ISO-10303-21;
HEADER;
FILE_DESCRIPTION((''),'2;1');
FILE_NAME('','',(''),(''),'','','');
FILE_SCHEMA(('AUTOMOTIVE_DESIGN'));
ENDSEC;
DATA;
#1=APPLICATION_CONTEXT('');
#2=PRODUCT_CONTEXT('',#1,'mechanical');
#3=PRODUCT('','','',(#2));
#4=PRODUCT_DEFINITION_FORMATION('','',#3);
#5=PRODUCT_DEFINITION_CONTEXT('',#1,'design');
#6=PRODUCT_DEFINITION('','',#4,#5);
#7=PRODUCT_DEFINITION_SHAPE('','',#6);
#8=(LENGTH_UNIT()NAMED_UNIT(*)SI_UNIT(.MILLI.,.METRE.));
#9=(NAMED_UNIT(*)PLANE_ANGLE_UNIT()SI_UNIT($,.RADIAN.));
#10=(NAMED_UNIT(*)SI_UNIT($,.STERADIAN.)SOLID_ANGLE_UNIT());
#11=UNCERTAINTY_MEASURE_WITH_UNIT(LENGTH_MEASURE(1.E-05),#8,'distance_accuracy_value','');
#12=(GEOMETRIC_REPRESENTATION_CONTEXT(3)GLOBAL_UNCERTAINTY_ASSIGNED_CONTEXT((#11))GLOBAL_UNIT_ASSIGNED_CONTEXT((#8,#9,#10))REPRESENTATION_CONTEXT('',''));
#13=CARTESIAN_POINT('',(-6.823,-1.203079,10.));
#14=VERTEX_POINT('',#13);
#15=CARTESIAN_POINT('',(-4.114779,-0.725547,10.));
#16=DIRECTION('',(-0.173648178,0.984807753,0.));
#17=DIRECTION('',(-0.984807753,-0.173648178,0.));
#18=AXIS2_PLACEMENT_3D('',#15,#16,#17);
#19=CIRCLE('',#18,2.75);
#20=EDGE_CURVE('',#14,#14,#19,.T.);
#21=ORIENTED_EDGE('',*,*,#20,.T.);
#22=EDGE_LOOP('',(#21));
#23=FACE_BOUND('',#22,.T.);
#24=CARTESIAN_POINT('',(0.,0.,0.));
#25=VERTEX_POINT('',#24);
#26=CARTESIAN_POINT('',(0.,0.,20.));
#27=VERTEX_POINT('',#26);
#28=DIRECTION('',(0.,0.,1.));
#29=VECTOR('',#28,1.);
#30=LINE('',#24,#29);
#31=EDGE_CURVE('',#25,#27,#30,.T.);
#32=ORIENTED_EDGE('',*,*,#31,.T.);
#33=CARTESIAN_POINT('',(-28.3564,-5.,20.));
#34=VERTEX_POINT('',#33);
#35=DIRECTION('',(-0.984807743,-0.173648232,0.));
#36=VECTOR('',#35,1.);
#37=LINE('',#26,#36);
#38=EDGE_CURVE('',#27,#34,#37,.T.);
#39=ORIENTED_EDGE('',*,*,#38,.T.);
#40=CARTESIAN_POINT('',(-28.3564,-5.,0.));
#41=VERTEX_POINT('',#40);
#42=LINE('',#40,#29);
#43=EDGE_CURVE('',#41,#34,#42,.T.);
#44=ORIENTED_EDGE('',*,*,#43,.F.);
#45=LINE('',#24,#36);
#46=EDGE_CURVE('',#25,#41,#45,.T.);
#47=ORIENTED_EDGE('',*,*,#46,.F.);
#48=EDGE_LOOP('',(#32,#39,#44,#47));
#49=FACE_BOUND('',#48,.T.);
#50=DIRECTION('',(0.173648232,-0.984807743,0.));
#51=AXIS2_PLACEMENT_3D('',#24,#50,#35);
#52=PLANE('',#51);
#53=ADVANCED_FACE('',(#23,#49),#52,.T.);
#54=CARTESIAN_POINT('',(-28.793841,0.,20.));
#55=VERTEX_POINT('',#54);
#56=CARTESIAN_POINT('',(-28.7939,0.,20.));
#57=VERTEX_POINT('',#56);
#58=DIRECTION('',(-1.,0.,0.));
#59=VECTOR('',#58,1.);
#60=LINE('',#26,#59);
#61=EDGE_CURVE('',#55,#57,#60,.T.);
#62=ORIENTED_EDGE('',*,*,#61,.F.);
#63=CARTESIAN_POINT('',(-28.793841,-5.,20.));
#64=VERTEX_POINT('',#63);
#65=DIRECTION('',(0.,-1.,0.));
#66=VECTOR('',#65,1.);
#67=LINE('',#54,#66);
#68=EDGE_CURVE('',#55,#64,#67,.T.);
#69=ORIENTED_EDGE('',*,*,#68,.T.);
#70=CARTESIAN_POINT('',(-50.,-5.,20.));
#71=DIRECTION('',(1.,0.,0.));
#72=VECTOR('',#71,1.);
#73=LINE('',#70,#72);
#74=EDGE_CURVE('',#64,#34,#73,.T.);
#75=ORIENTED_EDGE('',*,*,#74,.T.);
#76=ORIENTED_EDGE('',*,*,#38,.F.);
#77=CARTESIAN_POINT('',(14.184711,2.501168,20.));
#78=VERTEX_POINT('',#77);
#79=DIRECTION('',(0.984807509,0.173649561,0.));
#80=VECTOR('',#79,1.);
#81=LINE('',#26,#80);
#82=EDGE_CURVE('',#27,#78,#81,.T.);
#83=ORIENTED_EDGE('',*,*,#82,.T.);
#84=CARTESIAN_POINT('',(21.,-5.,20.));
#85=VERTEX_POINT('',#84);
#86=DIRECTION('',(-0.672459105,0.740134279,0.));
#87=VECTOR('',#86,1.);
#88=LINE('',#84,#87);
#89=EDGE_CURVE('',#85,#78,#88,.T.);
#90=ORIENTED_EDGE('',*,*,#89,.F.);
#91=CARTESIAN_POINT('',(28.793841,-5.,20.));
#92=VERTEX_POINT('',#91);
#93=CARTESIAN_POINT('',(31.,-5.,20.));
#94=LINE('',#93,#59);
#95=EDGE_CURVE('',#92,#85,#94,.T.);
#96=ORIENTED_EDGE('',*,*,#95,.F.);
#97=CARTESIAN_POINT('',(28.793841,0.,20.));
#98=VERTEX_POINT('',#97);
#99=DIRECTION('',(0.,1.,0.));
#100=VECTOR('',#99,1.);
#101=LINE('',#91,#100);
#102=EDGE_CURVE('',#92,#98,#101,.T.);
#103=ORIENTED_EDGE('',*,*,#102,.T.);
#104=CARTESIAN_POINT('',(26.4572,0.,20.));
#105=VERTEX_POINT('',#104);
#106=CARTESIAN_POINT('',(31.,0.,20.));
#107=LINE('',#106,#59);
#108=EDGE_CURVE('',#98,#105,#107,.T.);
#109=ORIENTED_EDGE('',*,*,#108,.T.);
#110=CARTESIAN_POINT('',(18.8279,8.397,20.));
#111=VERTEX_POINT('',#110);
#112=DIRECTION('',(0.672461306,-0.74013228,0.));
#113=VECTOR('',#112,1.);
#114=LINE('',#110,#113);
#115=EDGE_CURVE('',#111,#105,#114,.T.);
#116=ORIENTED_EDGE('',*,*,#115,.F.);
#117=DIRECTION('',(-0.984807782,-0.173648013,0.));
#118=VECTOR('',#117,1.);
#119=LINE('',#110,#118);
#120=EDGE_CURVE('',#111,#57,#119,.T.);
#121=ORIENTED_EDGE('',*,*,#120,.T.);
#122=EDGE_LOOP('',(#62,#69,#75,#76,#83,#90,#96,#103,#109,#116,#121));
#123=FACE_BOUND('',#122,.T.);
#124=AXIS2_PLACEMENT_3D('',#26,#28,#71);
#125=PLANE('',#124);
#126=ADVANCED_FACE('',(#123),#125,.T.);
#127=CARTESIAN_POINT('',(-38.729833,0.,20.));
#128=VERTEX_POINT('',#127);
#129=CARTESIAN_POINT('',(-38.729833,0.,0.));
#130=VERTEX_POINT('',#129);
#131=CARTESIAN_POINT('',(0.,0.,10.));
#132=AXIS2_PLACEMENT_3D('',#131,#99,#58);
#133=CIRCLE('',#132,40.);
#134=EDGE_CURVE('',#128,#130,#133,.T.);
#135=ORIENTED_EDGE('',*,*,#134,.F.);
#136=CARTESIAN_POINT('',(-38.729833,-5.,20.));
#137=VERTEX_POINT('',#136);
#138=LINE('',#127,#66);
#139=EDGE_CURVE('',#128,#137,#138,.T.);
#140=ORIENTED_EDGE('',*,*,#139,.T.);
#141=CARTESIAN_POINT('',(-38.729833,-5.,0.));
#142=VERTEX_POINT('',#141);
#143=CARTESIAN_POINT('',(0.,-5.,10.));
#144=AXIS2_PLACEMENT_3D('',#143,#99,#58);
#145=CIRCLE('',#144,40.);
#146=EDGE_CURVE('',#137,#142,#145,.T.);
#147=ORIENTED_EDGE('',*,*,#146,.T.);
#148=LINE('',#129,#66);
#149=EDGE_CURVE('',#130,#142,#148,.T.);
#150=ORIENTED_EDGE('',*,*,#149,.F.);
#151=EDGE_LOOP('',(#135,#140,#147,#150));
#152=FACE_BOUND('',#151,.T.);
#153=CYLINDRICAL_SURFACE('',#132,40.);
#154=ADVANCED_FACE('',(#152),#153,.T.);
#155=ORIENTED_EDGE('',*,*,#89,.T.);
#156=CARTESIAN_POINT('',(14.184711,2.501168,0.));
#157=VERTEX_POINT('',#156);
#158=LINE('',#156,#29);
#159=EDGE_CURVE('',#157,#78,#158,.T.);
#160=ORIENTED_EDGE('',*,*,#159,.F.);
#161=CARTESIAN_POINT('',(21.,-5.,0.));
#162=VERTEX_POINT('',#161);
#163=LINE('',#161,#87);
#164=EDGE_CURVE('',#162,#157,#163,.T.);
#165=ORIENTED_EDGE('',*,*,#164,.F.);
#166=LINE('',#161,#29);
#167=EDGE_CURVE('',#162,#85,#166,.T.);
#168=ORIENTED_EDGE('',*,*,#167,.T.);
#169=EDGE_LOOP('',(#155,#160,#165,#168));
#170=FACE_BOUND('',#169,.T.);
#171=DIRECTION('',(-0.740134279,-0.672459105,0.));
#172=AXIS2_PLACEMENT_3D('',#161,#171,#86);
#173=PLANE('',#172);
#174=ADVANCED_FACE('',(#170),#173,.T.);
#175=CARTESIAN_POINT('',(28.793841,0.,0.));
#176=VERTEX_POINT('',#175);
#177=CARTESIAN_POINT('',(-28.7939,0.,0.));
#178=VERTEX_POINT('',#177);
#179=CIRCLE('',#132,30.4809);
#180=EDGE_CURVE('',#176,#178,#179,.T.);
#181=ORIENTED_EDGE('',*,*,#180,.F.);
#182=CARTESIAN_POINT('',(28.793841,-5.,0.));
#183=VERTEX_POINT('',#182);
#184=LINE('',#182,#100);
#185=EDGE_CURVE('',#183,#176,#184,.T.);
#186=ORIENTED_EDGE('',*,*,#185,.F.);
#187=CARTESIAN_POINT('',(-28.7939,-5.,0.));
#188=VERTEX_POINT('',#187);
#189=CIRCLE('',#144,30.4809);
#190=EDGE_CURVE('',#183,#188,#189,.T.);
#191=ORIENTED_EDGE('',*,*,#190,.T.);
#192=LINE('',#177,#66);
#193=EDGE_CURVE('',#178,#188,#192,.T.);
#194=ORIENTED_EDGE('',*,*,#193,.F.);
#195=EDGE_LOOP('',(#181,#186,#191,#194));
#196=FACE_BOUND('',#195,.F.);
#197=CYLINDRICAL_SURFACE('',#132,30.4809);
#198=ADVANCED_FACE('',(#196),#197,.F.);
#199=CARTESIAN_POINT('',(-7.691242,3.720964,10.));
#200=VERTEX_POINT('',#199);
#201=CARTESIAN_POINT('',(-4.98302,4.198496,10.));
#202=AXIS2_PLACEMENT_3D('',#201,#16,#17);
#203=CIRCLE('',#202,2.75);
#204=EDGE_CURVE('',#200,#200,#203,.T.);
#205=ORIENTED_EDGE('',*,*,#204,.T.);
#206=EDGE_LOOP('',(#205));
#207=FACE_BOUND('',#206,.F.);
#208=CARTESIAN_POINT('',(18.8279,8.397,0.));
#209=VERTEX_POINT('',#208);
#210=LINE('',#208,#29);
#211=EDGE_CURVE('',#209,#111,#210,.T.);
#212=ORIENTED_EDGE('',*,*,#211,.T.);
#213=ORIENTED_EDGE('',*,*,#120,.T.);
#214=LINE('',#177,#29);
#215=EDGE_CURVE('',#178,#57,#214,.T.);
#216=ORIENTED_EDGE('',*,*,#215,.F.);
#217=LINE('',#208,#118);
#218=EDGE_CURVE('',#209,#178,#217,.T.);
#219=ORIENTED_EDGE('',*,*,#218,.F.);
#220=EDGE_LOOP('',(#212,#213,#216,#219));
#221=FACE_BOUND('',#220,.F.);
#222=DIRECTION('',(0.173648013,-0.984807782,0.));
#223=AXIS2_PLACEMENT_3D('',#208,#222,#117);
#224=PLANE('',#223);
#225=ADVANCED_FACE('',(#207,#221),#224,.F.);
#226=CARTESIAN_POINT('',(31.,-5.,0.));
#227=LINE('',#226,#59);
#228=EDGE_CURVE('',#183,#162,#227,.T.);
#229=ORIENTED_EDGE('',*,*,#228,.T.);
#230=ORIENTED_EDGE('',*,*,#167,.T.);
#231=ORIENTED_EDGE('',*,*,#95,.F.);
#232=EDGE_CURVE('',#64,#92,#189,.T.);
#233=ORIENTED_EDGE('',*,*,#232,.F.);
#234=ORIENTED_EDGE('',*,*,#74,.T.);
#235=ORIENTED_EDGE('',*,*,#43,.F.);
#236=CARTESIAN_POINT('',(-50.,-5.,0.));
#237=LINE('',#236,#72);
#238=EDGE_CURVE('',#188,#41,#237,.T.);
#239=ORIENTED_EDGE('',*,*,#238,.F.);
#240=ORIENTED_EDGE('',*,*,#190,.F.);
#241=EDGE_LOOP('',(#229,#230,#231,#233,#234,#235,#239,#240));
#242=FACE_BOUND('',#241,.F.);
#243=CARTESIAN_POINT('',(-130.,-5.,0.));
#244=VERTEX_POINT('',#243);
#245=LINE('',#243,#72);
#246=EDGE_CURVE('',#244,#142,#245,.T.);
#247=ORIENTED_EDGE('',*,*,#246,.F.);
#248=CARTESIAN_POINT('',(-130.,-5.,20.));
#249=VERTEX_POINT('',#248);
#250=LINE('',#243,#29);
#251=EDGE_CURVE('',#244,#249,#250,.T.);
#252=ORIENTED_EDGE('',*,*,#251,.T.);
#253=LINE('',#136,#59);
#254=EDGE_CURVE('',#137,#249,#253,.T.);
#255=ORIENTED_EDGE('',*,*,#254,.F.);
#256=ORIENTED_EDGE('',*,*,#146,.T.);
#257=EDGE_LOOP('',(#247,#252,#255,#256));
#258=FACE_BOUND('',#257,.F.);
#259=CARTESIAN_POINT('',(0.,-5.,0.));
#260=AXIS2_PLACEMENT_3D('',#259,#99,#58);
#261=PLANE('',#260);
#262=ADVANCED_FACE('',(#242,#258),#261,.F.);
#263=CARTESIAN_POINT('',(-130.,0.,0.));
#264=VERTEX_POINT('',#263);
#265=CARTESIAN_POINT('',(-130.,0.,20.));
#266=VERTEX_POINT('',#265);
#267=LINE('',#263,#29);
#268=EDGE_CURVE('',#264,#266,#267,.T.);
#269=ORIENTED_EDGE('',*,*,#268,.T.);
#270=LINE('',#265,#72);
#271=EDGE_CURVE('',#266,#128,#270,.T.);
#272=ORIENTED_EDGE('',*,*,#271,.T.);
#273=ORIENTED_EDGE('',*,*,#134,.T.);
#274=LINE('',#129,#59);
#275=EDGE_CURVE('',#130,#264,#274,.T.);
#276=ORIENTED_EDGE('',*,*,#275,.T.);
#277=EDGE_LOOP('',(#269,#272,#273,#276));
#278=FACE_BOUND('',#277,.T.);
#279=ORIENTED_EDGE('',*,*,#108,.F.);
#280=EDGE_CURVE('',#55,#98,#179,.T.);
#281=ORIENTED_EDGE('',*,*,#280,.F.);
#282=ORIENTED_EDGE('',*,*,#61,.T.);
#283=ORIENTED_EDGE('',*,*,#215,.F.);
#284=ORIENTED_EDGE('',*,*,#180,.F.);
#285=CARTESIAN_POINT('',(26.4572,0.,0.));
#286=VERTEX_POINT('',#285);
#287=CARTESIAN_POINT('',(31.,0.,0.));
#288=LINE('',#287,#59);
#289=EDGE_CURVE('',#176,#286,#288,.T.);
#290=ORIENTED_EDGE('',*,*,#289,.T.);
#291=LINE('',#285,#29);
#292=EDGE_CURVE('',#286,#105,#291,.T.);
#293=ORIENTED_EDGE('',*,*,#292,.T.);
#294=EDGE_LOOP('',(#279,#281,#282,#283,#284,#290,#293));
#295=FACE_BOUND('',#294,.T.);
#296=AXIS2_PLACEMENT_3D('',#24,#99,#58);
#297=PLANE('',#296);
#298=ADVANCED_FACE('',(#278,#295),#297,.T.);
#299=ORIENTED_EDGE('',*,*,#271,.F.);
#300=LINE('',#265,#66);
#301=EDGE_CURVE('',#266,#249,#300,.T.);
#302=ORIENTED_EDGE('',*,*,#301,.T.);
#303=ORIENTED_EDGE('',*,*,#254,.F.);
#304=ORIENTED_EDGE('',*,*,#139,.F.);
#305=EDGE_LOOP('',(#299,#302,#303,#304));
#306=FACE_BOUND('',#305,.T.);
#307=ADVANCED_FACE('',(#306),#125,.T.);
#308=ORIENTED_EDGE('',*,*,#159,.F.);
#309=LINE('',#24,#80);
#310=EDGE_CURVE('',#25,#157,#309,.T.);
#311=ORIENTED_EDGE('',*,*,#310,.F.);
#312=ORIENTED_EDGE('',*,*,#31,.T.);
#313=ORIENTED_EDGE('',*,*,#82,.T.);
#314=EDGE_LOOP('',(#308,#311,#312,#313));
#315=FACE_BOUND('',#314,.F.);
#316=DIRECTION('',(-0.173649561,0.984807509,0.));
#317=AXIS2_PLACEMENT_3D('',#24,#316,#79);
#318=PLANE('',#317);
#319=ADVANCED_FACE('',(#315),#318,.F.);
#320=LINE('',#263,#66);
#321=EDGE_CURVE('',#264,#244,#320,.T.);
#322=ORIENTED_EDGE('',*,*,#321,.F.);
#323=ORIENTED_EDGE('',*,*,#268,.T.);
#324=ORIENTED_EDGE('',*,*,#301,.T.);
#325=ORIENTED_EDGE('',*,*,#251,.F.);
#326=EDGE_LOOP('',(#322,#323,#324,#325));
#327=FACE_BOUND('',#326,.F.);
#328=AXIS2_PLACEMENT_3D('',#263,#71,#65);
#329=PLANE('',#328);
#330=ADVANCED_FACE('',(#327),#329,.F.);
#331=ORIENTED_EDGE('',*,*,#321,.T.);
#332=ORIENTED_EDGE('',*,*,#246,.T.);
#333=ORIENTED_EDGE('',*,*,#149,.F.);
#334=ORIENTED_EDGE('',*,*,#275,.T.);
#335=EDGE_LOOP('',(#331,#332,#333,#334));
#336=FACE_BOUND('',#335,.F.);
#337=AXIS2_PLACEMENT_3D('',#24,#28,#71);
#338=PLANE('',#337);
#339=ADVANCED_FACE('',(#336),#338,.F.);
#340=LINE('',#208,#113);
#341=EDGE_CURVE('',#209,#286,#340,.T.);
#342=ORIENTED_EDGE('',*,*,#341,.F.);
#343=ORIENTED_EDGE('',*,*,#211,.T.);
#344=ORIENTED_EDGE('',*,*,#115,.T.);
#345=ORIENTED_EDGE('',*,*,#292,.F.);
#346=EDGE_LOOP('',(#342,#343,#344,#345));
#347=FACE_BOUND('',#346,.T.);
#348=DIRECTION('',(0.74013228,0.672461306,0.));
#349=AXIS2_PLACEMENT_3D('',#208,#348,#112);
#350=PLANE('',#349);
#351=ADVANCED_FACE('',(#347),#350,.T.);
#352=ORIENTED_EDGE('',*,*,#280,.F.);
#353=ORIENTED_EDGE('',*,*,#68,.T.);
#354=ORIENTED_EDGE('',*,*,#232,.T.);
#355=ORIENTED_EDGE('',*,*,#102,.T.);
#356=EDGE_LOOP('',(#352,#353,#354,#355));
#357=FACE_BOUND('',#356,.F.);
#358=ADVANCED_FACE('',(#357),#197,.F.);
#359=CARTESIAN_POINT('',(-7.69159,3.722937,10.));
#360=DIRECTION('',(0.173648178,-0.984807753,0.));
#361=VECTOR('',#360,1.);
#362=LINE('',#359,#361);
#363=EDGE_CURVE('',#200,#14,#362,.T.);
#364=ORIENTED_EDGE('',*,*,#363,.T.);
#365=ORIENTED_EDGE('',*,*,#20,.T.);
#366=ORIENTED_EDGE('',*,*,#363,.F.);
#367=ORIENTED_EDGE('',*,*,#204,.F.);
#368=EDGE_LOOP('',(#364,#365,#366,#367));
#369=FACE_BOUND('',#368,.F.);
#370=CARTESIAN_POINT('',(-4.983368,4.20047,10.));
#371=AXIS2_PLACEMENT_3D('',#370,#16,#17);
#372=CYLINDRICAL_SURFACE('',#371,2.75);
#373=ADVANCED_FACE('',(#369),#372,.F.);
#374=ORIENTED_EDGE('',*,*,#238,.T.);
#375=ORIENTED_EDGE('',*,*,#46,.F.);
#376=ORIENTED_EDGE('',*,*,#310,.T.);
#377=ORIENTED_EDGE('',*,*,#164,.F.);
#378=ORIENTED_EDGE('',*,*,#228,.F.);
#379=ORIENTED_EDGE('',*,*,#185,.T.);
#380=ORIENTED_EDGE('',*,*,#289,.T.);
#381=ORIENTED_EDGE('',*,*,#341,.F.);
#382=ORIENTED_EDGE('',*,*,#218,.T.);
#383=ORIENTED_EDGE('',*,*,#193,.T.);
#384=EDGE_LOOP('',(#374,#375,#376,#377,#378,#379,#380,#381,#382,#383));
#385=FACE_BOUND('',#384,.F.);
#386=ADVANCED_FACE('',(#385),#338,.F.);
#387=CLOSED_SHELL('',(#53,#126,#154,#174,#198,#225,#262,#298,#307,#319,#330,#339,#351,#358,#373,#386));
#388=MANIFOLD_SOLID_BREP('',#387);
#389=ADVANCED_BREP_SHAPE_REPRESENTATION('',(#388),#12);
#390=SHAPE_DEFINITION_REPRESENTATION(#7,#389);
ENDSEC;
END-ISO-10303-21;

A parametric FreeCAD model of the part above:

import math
import FreeCAD as App
import Part
import Sketcher
from FreeCAD import Vector
Q = App.Units.Quantity

doc = App.newDocument("Part")
body = doc.addObject("PartDesign::Body", "Body")

# Sketch on XY plane
sketch1 = body.newObject("Sketcher::SketchObject", "Sketch")
sketch1.AttachmentSupport = (doc.getObject("XY_Plane"), [""])
sketch1.MapMode = "FlatFace"
sketch1.addGeometry([
    Part.LineSegment(Vector(-28.3564, -5, 0), Vector(0, 0, 0)),  # 0
    Part.LineSegment(Vector(0, 0, 0), Vector(14.184711, 2.501168, 0)),  # 1
    Part.LineSegment(Vector(14.184711, 2.501168, 0), Vector(21, -5, 0)),  # 2
    Part.LineSegment(Vector(21, -5, 0), Vector(36, -5, 0)),  # 3
    Part.LineSegment(Vector(36, -5, 0), Vector(36, 0, 0)),  # 4
    Part.LineSegment(Vector(36, 0, 0), Vector(26.4572, 0, 0)),  # 5
    Part.LineSegment(Vector(26.457175, -0.000023, 0), Vector(18.8279, 8.397, 0)),  # 6
    Part.LineSegment(Vector(18.8279, 8.397, 0), Vector(-28.7939, 0, 0)),  # 7
    Part.LineSegment(Vector(-28.7939, 0, 0), Vector(-130, 0, 0)),  # 8
    Part.LineSegment(Vector(-130, 0, 0), Vector(-130, -5, 0)),  # 9
    Part.LineSegment(Vector(-130, -5, 0), Vector(-28.3564, -5, 0)),  # 10
], False)
sketch1.addConstraint([
    Sketcher.Constraint("Coincident", 0, 2, 1, 1),
    Sketcher.Constraint("Coincident", 1, 2, 2, 1),
    Sketcher.Constraint("Coincident", 2, 2, 3, 1),
    Sketcher.Constraint("Coincident", 3, 2, 4, 1),
    Sketcher.Constraint("Coincident", 4, 2, 5, 1),
    Sketcher.Constraint("Coincident", 5, 2, 6, 1),
    Sketcher.Constraint("Coincident", 6, 2, 7, 1),
    Sketcher.Constraint("Coincident", 7, 2, 8, 1),
    Sketcher.Constraint("Coincident", 8, 2, 9, 1),
    Sketcher.Constraint("Coincident", 9, 2, 10, 1),
    Sketcher.Constraint("Coincident", 10, 2, 0, 1),
    Sketcher.Constraint("Horizontal", 3),
    Sketcher.Constraint("Vertical", 4),
    Sketcher.Constraint("Horizontal", 5),
    Sketcher.Constraint("Horizontal", 8),
    Sketcher.Constraint("Vertical", 9),
    Sketcher.Constraint("Horizontal", 10),
    Sketcher.Constraint("Coincident", 0, 2, -1, 1),
    Sketcher.Constraint("PointOnObject", 4, 2, -1),
    Sketcher.Constraint("PointOnObject", 7, 2, -1),
    Sketcher.Constraint("Parallel", 0, 1),
    Sketcher.Constraint("Parallel", 2, 6),
    Sketcher.Constraint("Parallel", 1, 7),
    Sketcher.Constraint("Horizontal", 3, 2, 9, 2),
    Sketcher.Constraint("DistanceY", 4, 1, 4, 2, 5.0),
    Sketcher.Constraint("Angle", 0, Q("10 deg")),
    Sketcher.Constraint("DistanceX", 3, 1, 3, 2, 15.0),
    Sketcher.Constraint("DistanceX", -1, 1, 2, 2, 21.0),
    Sketcher.Constraint("DistanceX", 8, 2, -1, 1, 130.0),
    Sketcher.Constraint("DistanceX", 8, 2, 8, 1, 101.206),
    Sketcher.Constraint("DistanceX", 5, 2, 5, 1, 9.5428),
    Sketcher.Constraint("DistanceX", -1, 1, 6, 2, 18.828),
])
pad1 = body.newObject("PartDesign::Pad", "Pad")
pad1.Profile = sketch1
pad1.Length = 20

# Sketch on an angled plane
sketch2 = body.newObject("Sketcher::SketchObject", "Sketch001")
sketch2.Placement = App.Placement(Vector(-28.7939, 0, 0), App.Rotation(Vector(-0.984807753, -0.173648178, 0), Vector(0, 0, 1), Vector(-0.173648178, 0.984807753, 0), "ZXY"))
sketch2.addGeometry(Part.Circle(Vector(-24.1782, 10, 0), Vector(0, 0, 1), 2.75), False)
sketch2.addConstraint([
    Sketcher.Constraint("Diameter", 0, 5.5),
    Sketcher.Constraint("DistanceY", -1, 1, 0, 3, 10.0),
    Sketcher.Constraint("DistanceX", 0, 3, -1, 1, 24.1782),
])
pocket1 = body.newObject("PartDesign::Pocket", "Pocket")
pocket1.Profile = sketch2
pocket1.Length = 20

# Sketch on XZ plane
sketch3 = body.newObject("Sketcher::SketchObject", "Sketch002")
sketch3.AttachmentSupport = (doc.getObject("XZ_Plane"), [""])
sketch3.MapMode = "FlatFace"
sketch3.addGeometry([
    Part.LineSegment(Vector(-38.729833, 0, 0), Vector(-28.7939, 0, 0)),
    Part.ArcOfCircle(Part.Circle(Vector(0, 10, 0), Vector(0, 0, 1), 30.4809), math.radians(-160.848101), math.radians(160.848065)),
    Part.LineSegment(Vector(-28.793841, 20, 0), Vector(-38.729833, 20, 0)),
    Part.ArcOfCircle(Part.Circle(Vector(0, 10, 0), Vector(0, 0, 1), 40), math.radians(-165.522488), math.radians(165.522488)),
], False)
sketch3.addConstraint([
    Sketcher.Constraint("Coincident", 0, 2, 1, 1),
    Sketcher.Constraint("Coincident", 1, 2, 2, 1),
    Sketcher.Constraint("Coincident", 2, 2, 3, 2),
    Sketcher.Constraint("Coincident", 3, 1, 0, 1),
    Sketcher.Constraint("Horizontal", 0),
    Sketcher.Constraint("Horizontal", 2),
    Sketcher.Constraint("Coincident", 3, 3, 1, 3),
    Sketcher.Constraint("PointOnObject", 1, 3, -2),
    Sketcher.Constraint("PointOnObject", 0, 2, -1),
    Sketcher.Constraint("Vertical", 0, 2, 1, 2),
    Sketcher.Constraint("Radius", 3, 40.0),
    Sketcher.Constraint("DistanceY", -1, 1, 1, 3, 10.0),
    Sketcher.Constraint("Radius", 1, 30.481),
])
pad2 = body.newObject("PartDesign::Pad", "Pad001")
pad2.Profile = sketch3
pad2.Length = 5

doc.recompute()
